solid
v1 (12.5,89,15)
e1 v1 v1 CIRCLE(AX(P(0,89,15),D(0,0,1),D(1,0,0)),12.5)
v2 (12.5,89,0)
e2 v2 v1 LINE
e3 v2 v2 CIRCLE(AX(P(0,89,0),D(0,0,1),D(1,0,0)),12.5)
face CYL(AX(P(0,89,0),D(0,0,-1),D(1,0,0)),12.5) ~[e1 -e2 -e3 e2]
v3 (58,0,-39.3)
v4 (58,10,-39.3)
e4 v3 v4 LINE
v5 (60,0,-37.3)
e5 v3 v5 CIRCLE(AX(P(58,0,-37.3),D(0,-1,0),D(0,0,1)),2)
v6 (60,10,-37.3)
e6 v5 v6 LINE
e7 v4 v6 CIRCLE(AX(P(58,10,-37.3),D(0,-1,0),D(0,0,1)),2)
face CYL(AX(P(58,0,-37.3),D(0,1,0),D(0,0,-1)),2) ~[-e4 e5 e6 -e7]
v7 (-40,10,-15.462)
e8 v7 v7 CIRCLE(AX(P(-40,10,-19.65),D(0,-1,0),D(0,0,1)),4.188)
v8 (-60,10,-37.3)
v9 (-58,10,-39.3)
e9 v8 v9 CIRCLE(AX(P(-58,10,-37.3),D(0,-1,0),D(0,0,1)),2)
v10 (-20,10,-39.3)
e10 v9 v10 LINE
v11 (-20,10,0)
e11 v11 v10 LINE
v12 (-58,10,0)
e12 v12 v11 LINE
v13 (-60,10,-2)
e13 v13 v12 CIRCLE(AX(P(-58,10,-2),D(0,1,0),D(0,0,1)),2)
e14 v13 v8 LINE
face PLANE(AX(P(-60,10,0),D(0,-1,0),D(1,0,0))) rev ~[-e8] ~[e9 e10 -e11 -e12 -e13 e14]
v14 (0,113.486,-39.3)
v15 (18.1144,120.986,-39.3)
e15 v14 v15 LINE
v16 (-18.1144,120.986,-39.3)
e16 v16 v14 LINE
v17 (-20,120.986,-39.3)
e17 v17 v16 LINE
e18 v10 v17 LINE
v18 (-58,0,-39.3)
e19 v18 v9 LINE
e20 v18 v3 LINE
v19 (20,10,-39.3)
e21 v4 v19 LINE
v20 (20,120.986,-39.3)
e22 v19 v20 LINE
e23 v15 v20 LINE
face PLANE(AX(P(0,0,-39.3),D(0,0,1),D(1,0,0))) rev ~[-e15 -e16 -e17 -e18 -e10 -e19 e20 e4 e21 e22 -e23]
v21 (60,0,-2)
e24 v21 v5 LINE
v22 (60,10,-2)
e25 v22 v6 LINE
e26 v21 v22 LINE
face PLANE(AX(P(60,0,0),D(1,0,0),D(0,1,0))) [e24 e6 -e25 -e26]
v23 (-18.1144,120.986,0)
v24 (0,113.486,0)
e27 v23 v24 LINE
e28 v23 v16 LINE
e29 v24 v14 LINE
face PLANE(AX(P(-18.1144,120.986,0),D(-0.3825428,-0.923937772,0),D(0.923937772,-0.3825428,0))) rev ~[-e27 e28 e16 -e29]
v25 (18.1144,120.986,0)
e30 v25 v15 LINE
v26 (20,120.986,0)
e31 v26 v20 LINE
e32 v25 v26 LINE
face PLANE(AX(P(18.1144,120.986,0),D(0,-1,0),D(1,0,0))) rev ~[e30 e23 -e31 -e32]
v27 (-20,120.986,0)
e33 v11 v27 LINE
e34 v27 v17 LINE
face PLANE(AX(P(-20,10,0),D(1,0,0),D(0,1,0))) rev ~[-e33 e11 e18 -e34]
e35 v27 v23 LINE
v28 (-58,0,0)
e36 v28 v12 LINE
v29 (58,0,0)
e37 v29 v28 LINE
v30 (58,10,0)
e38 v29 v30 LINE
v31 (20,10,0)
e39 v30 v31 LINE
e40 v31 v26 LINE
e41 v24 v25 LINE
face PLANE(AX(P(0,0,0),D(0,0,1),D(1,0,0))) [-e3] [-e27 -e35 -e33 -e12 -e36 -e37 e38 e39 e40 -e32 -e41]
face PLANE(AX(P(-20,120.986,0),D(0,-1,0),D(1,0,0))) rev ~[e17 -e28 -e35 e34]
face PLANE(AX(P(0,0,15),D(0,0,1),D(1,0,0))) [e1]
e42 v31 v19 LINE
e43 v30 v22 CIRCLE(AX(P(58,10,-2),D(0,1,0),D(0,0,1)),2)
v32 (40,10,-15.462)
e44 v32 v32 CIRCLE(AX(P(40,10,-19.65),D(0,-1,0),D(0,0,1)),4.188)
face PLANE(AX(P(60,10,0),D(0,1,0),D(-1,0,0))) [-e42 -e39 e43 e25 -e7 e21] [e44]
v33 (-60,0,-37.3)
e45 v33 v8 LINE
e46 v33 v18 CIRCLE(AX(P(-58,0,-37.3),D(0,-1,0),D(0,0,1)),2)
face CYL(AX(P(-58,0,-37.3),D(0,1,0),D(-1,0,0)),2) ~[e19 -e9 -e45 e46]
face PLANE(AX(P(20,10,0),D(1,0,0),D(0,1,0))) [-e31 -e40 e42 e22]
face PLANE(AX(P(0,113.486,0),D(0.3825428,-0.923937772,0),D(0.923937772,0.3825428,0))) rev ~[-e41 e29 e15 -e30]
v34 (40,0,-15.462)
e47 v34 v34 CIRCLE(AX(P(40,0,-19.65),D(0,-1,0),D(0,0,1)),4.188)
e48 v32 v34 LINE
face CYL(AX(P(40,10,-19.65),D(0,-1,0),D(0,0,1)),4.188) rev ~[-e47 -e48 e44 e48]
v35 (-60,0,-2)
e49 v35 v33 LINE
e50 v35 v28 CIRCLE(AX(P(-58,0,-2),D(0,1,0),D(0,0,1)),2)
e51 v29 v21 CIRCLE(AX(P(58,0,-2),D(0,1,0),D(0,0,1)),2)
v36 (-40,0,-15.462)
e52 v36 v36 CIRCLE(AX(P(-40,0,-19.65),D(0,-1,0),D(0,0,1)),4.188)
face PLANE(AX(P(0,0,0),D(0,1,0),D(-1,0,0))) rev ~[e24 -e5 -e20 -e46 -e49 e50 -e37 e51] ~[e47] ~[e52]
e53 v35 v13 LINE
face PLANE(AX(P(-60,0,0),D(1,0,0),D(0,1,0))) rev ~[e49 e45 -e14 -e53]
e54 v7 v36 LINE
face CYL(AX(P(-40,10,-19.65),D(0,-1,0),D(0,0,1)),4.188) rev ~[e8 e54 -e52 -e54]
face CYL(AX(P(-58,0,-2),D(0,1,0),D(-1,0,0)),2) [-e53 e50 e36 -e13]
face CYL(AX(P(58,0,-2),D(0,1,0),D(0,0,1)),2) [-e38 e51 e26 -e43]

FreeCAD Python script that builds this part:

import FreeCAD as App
import Part
import Sketcher

V = App.Vector


def edges_at(feature, points):
    """Names of the edges that pass closest to the given points."""
    edges = feature.Shape.Edges
    near = lambda p: min(range(len(edges)), key=lambda i: edges[i].distToShape(Part.Vertex(*p))[0])
    return sorted({f"Edge{near(p) + 1}" for p in points})


def add_polygon(sketch, points):
    """Adds a closed chain of lines whose ends are joined by coincident constraints."""
    first, n = sketch.GeometryCount, len(points)
    for a, b in zip(points, points[1:] + points[:1]):
        sketch.addGeometry(Part.LineSegment(App.Vector(*a, 0), App.Vector(*b, 0)), False)
    for i in range(n):
        sketch.addConstraint(Sketcher.Constraint("Coincident", first + i, 2, first + (i + 1) % n, 1))

doc = App.newDocument("Part")
params = doc.addObject("Spreadsheet::Sheet", "Params")
for row, (alias, value) in enumerate([
    ("sketch1_width", "40 mm"),
    ("sketch1_height", "10 mm"),
    ("pad1_length", "39.3 mm"),
    ("sketch2_diameter", "25 mm"),
    ("pad2_length", "15 mm"),
    ("fillet_radius", "2 mm"),
    ("hole_diameter", "8.376 mm"),
], start=1):
    params.set(f"A{row}", alias)
    params.set(f"B{row}", "=" + value)
    params.setAlias(f"B{row}", alias)

body = doc.addObject("PartDesign::Body", "Body")

# Sketch on XY plane
sketch1 = body.newObject("Sketcher::SketchObject", "Sketch")
sketch1.AttachmentSupport = (doc.getObject("XY_Plane"), [""])
sketch1.MapMode = "FlatFace"
add_polygon(sketch1, [(-60, 0), (60, 0), (60, 10), (20, 10), (20, 121), (18.1, 121), (0, 113.5), (-18.1, 121), (-20, 121), (-20, 10), (-60, 10)])  # lines 0-10
sketch1.addConstraint([
    Sketcher.Constraint("Horizontal", 0),
    Sketcher.Constraint("Vertical", 1),
    Sketcher.Constraint("Horizontal", 2),
    Sketcher.Constraint("Vertical", 3),
    Sketcher.Constraint("Horizontal", 4),
    Sketcher.Constraint("Horizontal", 7),
    Sketcher.Constraint("Vertical", 8),
    Sketcher.Constraint("Horizontal", 9),
    Sketcher.Constraint("Vertical", 10),
    Sketcher.Constraint("Symmetric", 0, 2, 10, 2, -1, 1),
    Sketcher.Constraint("Symmetric", 4, 2, 6, 2, -2),
    Sketcher.Constraint("Symmetric", 2, 2, 8, 2, -2),
    Sketcher.Constraint("PointOnObject", 5, 2, -2),
    Sketcher.Constraint("DistanceX", 2, 2, 2, 1, 40.0),
    Sketcher.Constraint("DistanceY", 1, 1, 1, 2, 10.0),
    Sketcher.Constraint("DistanceX", -1, 1, 0, 2, 60.0),
    Sketcher.Constraint("DistanceY", 5, 2, 4, 2, 7.5),
    Sketcher.Constraint("DistanceY", 3, 1, 3, 2, 110.986),
    Sketcher.Constraint("DistanceX", -1, 1, 4, 2, 18.1144),
])
sketch1.setExpression("Constraints[24]", "Params.sketch1_width")
sketch1.setExpression("Constraints[25]", "Params.sketch1_height")
pad1 = body.newObject("PartDesign::Pad", "Pad")
pad1.Profile = sketch1
pad1.setExpression("Length", "Params.pad1_length")
pad1.Reversed = True

# Sketch on XY plane
sketch2 = body.newObject("Sketcher::SketchObject", "Sketch001")
sketch2.AttachmentSupport = (doc.getObject("XY_Plane"), [""])
sketch2.MapMode = "FlatFace"
sketch2.addGeometry(Part.Circle(V(0, 89, 0), V(0, 0, 1), 12), False)
sketch2.addConstraint([
    Sketcher.Constraint("PointOnObject", 0, 3, -2),
    Sketcher.Constraint("Diameter", 0, 25.0),
    Sketcher.Constraint("DistanceY", -1, 1, 0, 3, 89.0),
])
sketch2.setExpression("Constraints[1]", "Params.sketch2_diameter")
pad2 = body.newObject("PartDesign::Pad", "Pad001")
pad2.Profile = sketch2
pad2.setExpression("Length", "Params.pad2_length")
doc.recompute()

fillet = body.newObject("PartDesign::Fillet", "Fillet")
fillet.Base = (pad2, edges_at(pad2, [
    (60, 5, 0),
    (60, 5, -39.3),
    (-60, 5, 0),
    (-60, 5, -39.3),
]))
fillet.setExpression("Radius", "Params.fillet_radius")

# Sketch on XZ plane
sketch3 = body.newObject("Sketcher::SketchObject", "Sketch002")
sketch3.AttachmentSupport = (doc.getObject("XZ_Plane"), [""])
sketch3.MapMode = "FlatFace"
sketch3.AttachmentOffset = App.Placement(V(0, 0, -10), App.Rotation())
sketch3.addGeometry([
    Part.Circle(V(-40, -19.6, 0), V(0, 0, 1), 4.2),
    Part.Circle(V(40, -19.6, 0), V(0, 0, 1), 4.2),
], False)
sketch3.addConstraint([
    Sketcher.Constraint("Equal", 0, 1),
    Sketcher.Constraint("Symmetric", 0, 3, 1, 3, -2),
    Sketcher.Constraint("Diameter", 0, 8.376),
    Sketcher.Constraint("DistanceX", 0, 3, -1, 1, 40.0),
    Sketcher.Constraint("DistanceY", 0, 3, -1, 1, 19.65),
])
doc.recompute()
hole = body.newObject("PartDesign::Hole", "Hole")
hole.Profile = sketch3
hole.ThreadType = "None"
hole.setExpression("Diameter", "Params.hole_diameter")
hole.DepthType = "ThroughAll"
hole.Reversed = True

doc.recompute()
